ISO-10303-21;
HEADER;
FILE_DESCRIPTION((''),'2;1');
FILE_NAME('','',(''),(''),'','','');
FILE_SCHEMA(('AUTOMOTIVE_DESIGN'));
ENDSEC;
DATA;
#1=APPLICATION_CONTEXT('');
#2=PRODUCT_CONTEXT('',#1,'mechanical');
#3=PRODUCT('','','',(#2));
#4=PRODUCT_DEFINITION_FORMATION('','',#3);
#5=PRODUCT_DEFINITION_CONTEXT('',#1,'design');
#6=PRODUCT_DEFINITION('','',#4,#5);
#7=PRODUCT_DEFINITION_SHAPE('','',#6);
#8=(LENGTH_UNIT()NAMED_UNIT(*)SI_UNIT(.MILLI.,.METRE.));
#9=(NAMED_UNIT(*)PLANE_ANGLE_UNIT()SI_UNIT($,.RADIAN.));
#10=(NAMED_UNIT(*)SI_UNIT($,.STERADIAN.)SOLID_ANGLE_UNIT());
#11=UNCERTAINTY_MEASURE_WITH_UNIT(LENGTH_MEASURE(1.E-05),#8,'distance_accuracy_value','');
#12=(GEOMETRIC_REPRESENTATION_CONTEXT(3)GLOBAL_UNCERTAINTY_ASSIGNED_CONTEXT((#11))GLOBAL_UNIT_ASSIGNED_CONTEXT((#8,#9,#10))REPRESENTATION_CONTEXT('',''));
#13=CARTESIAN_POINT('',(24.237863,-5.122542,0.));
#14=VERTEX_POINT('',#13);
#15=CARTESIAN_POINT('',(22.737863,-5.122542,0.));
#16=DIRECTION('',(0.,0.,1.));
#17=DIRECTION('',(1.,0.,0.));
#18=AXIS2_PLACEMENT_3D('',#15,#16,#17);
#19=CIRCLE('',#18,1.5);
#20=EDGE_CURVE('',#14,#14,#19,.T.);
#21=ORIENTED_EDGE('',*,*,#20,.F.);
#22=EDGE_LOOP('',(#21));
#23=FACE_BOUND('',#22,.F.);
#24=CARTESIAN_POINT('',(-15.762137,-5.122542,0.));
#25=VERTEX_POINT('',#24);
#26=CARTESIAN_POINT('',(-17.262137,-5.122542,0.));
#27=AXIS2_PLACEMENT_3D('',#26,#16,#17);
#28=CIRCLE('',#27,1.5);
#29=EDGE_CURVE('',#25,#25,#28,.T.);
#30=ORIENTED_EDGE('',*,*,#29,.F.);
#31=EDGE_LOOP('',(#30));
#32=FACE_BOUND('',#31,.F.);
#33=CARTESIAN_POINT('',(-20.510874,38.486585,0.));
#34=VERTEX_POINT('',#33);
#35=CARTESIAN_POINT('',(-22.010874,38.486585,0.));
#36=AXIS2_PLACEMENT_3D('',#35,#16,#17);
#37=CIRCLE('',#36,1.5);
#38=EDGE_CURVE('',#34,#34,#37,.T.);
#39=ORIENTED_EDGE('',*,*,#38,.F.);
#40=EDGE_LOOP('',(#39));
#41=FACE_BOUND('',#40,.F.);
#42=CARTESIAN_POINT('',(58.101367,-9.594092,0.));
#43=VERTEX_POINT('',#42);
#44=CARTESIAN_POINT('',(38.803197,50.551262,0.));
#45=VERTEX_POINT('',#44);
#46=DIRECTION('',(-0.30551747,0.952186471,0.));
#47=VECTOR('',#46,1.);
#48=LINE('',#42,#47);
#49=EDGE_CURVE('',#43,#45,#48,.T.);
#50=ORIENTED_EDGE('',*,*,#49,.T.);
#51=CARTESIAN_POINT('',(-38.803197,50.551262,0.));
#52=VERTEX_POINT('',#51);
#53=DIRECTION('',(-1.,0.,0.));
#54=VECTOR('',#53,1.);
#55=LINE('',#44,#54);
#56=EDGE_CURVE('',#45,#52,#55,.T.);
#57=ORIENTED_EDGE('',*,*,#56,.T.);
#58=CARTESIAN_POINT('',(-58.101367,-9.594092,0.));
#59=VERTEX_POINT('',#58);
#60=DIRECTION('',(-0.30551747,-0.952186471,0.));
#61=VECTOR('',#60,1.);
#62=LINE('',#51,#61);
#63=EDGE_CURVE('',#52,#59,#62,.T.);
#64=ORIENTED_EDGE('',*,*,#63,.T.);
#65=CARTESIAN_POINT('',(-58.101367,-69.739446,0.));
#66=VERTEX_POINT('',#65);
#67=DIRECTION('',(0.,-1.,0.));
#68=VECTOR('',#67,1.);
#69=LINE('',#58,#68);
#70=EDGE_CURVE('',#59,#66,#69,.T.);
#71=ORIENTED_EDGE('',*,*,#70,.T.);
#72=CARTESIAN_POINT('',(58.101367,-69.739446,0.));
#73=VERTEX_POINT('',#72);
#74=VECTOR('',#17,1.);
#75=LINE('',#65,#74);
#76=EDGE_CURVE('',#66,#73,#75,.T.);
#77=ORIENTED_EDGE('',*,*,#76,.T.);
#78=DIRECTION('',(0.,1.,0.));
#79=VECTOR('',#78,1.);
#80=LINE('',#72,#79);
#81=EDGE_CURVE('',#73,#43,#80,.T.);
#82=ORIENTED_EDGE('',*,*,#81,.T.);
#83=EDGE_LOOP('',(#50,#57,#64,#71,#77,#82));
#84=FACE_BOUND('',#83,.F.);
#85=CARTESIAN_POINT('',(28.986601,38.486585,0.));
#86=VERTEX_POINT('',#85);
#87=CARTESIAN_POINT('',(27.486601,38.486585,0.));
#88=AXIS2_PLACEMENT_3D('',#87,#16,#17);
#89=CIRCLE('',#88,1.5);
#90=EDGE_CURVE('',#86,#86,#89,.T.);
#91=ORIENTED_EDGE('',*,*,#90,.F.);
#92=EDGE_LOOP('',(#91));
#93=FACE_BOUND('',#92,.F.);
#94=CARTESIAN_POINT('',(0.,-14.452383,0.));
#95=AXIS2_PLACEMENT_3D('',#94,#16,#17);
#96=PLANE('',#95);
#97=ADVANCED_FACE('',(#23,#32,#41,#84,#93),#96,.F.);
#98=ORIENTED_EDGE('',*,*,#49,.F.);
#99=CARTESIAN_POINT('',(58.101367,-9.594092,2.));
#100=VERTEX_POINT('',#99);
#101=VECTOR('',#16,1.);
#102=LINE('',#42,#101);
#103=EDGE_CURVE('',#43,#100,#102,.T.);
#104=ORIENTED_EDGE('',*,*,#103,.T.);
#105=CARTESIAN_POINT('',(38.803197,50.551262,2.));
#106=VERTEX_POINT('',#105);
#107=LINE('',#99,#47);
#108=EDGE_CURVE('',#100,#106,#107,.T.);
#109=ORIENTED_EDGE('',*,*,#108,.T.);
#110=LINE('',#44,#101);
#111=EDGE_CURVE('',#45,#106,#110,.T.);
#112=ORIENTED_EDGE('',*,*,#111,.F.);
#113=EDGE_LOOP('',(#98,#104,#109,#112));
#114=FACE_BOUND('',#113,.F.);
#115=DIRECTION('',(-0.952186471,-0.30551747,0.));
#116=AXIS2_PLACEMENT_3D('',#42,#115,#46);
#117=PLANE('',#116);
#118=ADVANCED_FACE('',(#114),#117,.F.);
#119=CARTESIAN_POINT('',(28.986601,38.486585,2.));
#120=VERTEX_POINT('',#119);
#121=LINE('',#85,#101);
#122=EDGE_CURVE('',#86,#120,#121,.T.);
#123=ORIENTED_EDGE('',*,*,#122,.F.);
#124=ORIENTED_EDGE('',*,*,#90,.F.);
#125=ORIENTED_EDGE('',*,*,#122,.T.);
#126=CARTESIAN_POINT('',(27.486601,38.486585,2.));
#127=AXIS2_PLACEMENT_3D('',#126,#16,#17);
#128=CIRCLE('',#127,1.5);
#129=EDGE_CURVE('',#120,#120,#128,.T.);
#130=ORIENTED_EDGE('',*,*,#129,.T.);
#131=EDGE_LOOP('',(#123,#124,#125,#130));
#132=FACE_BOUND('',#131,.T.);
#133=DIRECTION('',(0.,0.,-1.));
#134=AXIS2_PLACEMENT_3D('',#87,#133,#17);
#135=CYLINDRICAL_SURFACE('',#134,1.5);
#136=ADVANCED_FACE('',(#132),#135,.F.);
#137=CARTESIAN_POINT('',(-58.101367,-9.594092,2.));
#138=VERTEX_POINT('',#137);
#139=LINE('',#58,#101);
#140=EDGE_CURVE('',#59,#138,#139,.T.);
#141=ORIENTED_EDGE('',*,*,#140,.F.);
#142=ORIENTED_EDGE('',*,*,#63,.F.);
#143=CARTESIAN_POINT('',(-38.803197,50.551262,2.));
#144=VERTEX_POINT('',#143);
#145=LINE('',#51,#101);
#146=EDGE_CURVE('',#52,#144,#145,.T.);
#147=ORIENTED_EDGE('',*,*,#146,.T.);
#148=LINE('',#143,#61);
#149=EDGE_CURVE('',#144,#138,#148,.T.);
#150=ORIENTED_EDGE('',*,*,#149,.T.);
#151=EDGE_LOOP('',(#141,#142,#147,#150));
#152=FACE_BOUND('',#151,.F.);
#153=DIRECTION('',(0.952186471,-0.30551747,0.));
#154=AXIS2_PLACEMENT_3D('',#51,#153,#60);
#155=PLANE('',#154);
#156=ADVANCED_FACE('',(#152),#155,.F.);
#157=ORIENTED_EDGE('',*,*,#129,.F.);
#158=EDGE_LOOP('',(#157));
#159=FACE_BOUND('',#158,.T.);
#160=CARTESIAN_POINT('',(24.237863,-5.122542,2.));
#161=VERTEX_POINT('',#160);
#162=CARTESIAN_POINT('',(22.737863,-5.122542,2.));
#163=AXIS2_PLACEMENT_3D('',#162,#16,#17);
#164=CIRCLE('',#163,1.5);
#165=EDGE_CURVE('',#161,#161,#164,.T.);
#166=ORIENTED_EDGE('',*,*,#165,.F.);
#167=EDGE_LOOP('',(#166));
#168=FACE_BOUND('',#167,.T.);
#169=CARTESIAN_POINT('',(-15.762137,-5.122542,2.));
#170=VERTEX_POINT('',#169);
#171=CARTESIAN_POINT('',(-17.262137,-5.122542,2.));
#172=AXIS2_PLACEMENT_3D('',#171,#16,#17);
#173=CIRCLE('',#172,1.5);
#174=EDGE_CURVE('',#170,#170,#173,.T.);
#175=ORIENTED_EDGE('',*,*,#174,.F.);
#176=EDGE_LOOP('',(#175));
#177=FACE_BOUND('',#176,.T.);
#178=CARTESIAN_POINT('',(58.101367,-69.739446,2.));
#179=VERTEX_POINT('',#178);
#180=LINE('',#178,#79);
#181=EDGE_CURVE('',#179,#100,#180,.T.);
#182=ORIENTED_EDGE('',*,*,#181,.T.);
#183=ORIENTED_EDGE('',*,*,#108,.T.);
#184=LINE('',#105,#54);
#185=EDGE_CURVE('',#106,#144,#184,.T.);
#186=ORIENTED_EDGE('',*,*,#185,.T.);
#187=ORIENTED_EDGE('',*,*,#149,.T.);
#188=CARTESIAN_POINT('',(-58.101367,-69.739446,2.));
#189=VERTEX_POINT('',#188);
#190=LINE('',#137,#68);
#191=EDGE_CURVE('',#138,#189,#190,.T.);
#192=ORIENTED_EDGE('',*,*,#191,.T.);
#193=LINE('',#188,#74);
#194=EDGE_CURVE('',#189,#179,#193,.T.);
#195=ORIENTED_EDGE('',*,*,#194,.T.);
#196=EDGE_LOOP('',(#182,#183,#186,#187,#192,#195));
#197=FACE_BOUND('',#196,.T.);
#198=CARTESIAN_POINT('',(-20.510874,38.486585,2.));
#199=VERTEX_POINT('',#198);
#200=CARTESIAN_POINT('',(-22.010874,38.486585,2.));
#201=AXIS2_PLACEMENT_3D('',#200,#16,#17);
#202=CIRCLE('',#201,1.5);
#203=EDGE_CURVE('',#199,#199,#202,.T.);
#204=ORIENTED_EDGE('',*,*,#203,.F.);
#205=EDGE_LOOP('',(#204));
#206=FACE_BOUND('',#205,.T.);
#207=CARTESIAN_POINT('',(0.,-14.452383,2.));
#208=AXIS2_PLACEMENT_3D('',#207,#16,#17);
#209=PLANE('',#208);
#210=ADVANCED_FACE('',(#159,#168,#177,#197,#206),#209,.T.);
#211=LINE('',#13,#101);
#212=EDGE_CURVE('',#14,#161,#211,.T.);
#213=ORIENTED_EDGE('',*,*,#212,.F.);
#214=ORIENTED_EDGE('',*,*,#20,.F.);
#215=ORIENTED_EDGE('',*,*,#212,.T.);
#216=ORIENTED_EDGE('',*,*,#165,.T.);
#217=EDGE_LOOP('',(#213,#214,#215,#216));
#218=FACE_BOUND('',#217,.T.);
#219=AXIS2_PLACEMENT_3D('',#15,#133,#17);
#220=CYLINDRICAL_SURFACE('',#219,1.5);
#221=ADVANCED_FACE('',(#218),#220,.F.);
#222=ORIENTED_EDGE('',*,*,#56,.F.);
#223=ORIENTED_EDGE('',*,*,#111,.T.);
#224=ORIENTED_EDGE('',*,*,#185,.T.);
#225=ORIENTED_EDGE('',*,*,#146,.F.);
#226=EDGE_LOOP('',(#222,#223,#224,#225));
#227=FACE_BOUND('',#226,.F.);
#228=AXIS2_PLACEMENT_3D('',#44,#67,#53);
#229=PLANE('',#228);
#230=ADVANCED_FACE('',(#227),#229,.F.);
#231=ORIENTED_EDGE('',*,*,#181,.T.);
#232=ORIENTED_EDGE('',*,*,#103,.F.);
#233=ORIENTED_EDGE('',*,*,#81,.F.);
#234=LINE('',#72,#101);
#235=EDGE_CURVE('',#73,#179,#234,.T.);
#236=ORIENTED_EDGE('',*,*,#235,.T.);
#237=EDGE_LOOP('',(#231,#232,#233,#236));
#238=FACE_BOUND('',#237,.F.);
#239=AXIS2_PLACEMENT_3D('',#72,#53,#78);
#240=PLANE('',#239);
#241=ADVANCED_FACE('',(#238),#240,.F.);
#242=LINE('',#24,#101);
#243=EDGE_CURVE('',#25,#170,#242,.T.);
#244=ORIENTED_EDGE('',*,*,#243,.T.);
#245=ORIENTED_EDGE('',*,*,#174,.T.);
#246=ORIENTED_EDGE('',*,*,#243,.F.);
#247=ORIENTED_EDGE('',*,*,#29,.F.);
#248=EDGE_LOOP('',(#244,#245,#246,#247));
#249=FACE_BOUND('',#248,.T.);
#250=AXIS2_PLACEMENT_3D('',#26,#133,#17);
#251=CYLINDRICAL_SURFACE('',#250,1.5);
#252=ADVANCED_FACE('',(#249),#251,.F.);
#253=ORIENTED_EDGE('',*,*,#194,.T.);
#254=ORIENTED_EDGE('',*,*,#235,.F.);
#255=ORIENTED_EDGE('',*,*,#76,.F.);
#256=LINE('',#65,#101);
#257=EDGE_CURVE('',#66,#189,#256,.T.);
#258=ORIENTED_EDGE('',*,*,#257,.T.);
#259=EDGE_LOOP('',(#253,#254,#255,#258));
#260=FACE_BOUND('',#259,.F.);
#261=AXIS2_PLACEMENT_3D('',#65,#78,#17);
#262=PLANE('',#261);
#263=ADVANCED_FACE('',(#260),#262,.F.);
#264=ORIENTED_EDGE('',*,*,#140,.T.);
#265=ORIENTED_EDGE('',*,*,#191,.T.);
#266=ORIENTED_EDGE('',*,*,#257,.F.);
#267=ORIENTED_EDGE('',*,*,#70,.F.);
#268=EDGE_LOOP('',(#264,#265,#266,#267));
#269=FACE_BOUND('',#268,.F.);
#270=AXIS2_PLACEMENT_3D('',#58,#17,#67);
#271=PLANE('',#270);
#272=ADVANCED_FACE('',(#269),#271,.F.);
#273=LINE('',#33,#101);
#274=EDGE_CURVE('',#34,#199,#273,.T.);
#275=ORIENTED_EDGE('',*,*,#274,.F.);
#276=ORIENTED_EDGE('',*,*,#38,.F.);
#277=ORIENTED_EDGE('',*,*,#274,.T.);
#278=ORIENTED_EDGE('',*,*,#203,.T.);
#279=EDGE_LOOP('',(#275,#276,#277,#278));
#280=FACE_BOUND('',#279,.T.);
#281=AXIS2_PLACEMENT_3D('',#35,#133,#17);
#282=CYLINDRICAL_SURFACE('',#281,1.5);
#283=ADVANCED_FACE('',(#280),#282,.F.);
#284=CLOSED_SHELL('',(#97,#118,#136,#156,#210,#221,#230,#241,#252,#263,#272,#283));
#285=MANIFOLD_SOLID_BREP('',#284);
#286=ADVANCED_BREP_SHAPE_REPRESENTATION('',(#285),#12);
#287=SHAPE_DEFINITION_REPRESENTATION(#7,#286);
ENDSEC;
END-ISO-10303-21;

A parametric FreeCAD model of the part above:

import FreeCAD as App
import Part
import Sketcher

V = App.Vector

doc = App.newDocument("Part")
body = doc.addObject("PartDesign::Body", "Body")

# Sketch on XY plane
sketch1 = doc.addObject("Sketcher::SketchObject", "Sketch")
body.addObject(sketch1)
sketch1.AttachmentSupport = (doc.XY_Plane, [""])
sketch1.MapMode = "FlatFace"
sketch1.addGeometry([
    Part.LineSegment(V(38.8, 50.6, 0), V(-38.8, 50.6, 0)),  # 0
    Part.LineSegment(V(-38.8, 50.6, 0), V(-58.1, -9.6, 0)),  # 1
    Part.LineSegment(V(-58.1, -9.6, 0), V(-58.1, -69.7, 0)),  # 2
    Part.LineSegment(V(-58.1, -69.7, 0), V(58.1, -69.7, 0)),  # 3
    Part.LineSegment(V(58.1, -69.7, 0), V(58.1, -9.6, 0)),  # 4
    Part.LineSegment(V(58.1, -9.6, 0), V(38.8, 50.6, 0)),  # 5
    Part.Circle(V(-17.3, -5.1, 0), V(0, 0, 1), 1.5),  # 6
    Part.Circle(V(22.7, -5.1, 0), V(0, 0, 1), 1.5),  # 7
    Part.Circle(V(-22, 38.5, 0), V(0, 0, 1), 1.5),  # 8
    Part.Circle(V(27.5, 38.5, 0), V(0, 0, 1), 1.5),  # 9
], False)
sketch1.addConstraint([
    Sketcher.Constraint("Coincident", 0, 2, 1, 1),
    Sketcher.Constraint("Coincident", 1, 2, 2, 1),
    Sketcher.Constraint("Coincident", 2, 2, 3, 1),
    Sketcher.Constraint("Coincident", 3, 2, 4, 1),
    Sketcher.Constraint("Coincident", 4, 2, 5, 1),
    Sketcher.Constraint("Coincident", 5, 2, 0, 1),
    Sketcher.Constraint("Horizontal", 0),
    Sketcher.Constraint("Vertical", 2),
    Sketcher.Constraint("Horizontal", 3),
    Sketcher.Constraint("Vertical", 4),
    Sketcher.Constraint("Equal", 6, 7),
    Sketcher.Constraint("Equal", 7, 8),
    Sketcher.Constraint("Equal", 8, 9),
    Sketcher.Constraint("Symmetric", 1, 2, 4, 2, -2),
    Sketcher.Constraint("Horizontal", 6, 3, 7, 3),
    Sketcher.Constraint("Horizontal", 8, 3, 9, 3),
    Sketcher.Constraint("Equal", 1, 5),
    Sketcher.Constraint("Diameter", 6, 3.0),
    Sketcher.Constraint("DistanceX", 6, 3, 7, 3, 40.0),
    Sketcher.Constraint("DistanceX", -1, 1, 9, 3, 27.486601),
    Sketcher.Constraint("Distance", 1, 63.16552),
    Sketcher.Constraint("DistanceX", 0, 2, 0, 1, 77.606394),
    Sketcher.Constraint("DistanceX", 3, 1, 3, 2, 116.202734),
    Sketcher.Constraint("DistanceY", 2, 2, 2, 1, 60.145354),
    Sketcher.Constraint("DistanceX", 6, 3, 9, 3, 44.748738),
    Sketcher.Constraint("DistanceY", 1, 2, 6, 3, 4.47155),
    Sketcher.Constraint("DistanceY", 2, 2, 8, 3, 108.226031),
    Sketcher.Constraint("DistanceX", 8, 3, 4, 2, 80.112241),
    Sketcher.Constraint("DistanceY", 6, 3, -1, 1, 5.122542),
])
pad1 = doc.addObject("PartDesign::Pad", "Pad")
body.addObject(pad1)
pad1.Profile = sketch1
pad1.Length = 2

doc.recompute()
